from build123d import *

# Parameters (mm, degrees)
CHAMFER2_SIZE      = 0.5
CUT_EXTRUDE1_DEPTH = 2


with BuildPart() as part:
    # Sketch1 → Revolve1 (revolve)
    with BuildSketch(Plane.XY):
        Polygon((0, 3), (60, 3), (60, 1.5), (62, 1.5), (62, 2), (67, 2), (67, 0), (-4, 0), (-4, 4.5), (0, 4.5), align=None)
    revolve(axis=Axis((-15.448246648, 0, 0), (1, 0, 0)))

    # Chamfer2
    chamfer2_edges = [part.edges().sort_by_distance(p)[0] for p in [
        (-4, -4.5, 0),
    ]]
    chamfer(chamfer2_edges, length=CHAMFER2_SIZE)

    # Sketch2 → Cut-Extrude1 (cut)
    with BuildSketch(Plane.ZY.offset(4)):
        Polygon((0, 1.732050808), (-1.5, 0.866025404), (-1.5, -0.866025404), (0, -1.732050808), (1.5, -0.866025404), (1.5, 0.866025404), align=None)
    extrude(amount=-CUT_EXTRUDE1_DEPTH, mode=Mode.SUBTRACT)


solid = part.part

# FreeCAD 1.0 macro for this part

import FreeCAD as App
import Part
import Sketcher
from FreeCAD import Vector
Q = App.Units.Quantity


def edges_at(feature, points):
    """Names of the edges that pass closest to the given points."""
    edges = feature.Shape.Edges
    near = lambda p: min(range(len(edges)), key=lambda i: edges[i].distToShape(Part.Vertex(*p))[0])
    return sorted({f"Edge{near(p) + 1}" for p in points})

doc = App.newDocument("Part")
body = doc.addObject("PartDesign::Body", "Body")

# Sketch on XY plane
sketch1 = doc.addObject("Sketcher::SketchObject", "Sketch")
body.addObject(sketch1)
sketch1.AttachmentSupport = (doc.XY_Plane, [""])
sketch1.MapMode = "FlatFace"
sketch1.addGeometry([
    Part.LineSegment(Vector(60, 3, 0), Vector(0, 3, 0)),  # 0
    Part.LineSegment(Vector(0, 3, 0), Vector(0, 4.5, 0)),  # 1
    Part.LineSegment(Vector(0, 4.5, 0), Vector(-4, 4.5, 0)),  # 2
    Part.LineSegment(Vector(-4, 4.5, 0), Vector(-4, 0, 0)),  # 3
    Part.LineSegment(Vector(-4, 0, 0), Vector(67, 0, 0)),  # 4
    Part.LineSegment(Vector(67, 0, 0), Vector(67, 2, 0)),  # 5
    Part.LineSegment(Vector(67, 2, 0), Vector(62, 2, 0)),  # 6
    Part.LineSegment(Vector(62, 2, 0), Vector(62, 1.5, 0)),  # 7
    Part.LineSegment(Vector(62, 1.5, 0), Vector(60, 1.5, 0)),  # 8
    Part.LineSegment(Vector(60, 1.5, 0), Vector(60, 3, 0)),  # 9
], False)
sketch1.addConstraint([
    Sketcher.Constraint("Coincident", 0, 2, 1, 1),
    Sketcher.Constraint("Coincident", 1, 2, 2, 1),
    Sketcher.Constraint("Coincident", 2, 2, 3, 1),
    Sketcher.Constraint("Coincident", 3, 2, 4, 1),
    Sketcher.Constraint("Coincident", 4, 2, 5, 1),
    Sketcher.Constraint("Coincident", 5, 2, 6, 1),
    Sketcher.Constraint("Coincident", 6, 2, 7, 1),
    Sketcher.Constraint("Coincident", 7, 2, 8, 1),
    Sketcher.Constraint("Coincident", 8, 2, 9, 1),
    Sketcher.Constraint("Coincident", 9, 2, 0, 1),
    Sketcher.Constraint("Horizontal", 0),
    Sketcher.Constraint("Vertical", 1),
    Sketcher.Constraint("Horizontal", 2),
    Sketcher.Constraint("Vertical", 3),
    Sketcher.Constraint("Horizontal", 4),
    Sketcher.Constraint("Vertical", 5),
    Sketcher.Constraint("Horizontal", 6),
    Sketcher.Constraint("Vertical", 7),
    Sketcher.Constraint("Horizontal", 8),
    Sketcher.Constraint("Vertical", 9),
    Sketcher.Constraint("PointOnObject", 0, 2, -2),
    Sketcher.Constraint("PointOnObject", 3, 2, -1),
    Sketcher.Constraint("Equal", 8, 5),
    Sketcher.Constraint("Equal", 1, 9),
    Sketcher.Constraint("DistanceX", 0, 2, 0, 1, Q("60 mm")),
    Sketcher.Constraint("DistanceX", 2, 2, 2, 1, Q("4 mm")),
    Sketcher.Constraint("DistanceX", 4, 1, 4, 2, Q("71 mm")),
    Sketcher.Constraint("DistanceX", 6, 2, 6, 1, Q("5 mm")),
    Sketcher.Constraint("DistanceY", 1, 1, 1, 2, Q("1.5 mm")),
    Sketcher.Constraint("DistanceY", 3, 2, 3, 1, Q("4.5 mm")),
])
revolution = doc.addObject("PartDesign::Revolution", "Revolution")
body.addObject(revolution)
revolution.Profile = sketch1
revolution.ReferenceAxis = (sketch1, ["H_Axis"])
revolution.Angle = 360
doc.recompute()

chamfer = doc.addObject("PartDesign::Chamfer", "Chamfer")
body.addObject(chamfer)
chamfer.Base = (revolution, edges_at(revolution, [(-4, -4.5, 0)]))
chamfer.Size = 0.5

# Sketch on YZ plane
sketch2 = doc.addObject("Sketcher::SketchObject", "Sketch001")
body.addObject(sketch2)
sketch2.AttachmentSupport = (doc.YZ_Plane, [""])
sketch2.MapMode = "FlatFace"
sketch2.AttachmentOffset = App.Placement(Vector(0, 0, -4), App.Rotation())
sketch2.addGeometry([
    Part.LineSegment(Vector(1.7, 0, 0), Vector(0.9, -1.5, 0)),  # 0
    Part.LineSegment(Vector(0.9, -1.5, 0), Vector(-0.9, -1.5, 0)),  # 1
    Part.LineSegment(Vector(-0.9, -1.5, 0), Vector(-1.7, 0, 0)),  # 2
    Part.LineSegment(Vector(-1.7, 0, 0), Vector(-0.9, 1.5, 0)),  # 3
    Part.LineSegment(Vector(-0.9, 1.5, 0), Vector(0.9, 1.5, 0)),  # 4
    Part.LineSegment(Vector(0.9, 1.5, 0), Vector(1.7, 0, 0)),  # 5
], False)
sketch2.addConstraint([
    Sketcher.Constraint("Coincident", 0, 2, 1, 1),
    Sketcher.Constraint("Coincident", 1, 2, 2, 1),
    Sketcher.Constraint("Coincident", 2, 2, 3, 1),
    Sketcher.Constraint("Coincident", 3, 2, 4, 1),
    Sketcher.Constraint("Coincident", 4, 2, 5, 1),
    Sketcher.Constraint("Coincident", 5, 2, 0, 1),
    Sketcher.Constraint("Horizontal", 1),
    Sketcher.Constraint("Horizontal", 4),
    Sketcher.Constraint("Symmetric", 0, 2, 3, 2, -1, 1),
    Sketcher.Constraint("Symmetric", 2, 2, 5, 2, -1, 1),
    Sketcher.Constraint("PointOnObject", 2, 2, -1),
    Sketcher.Constraint("Parallel", 2, 5),
    Sketcher.Constraint("Vertical", 1, 2, 3, 2),
    Sketcher.Constraint("Angle", 0, Q("-120 deg")),
    Sketcher.Constraint("DistanceY", 1, 2, 3, 2, Q("3 mm")),
    Sketcher.Constraint("DistanceX", 1, 2, 1, 1, Q("1.732051 mm")),
])
pocket1 = doc.addObject("PartDesign::Pocket", "Pocket")
body.addObject(pocket1)
pocket1.Profile = sketch2
pocket1.Length = 2
pocket1.Reversed = True

doc.recompute()
